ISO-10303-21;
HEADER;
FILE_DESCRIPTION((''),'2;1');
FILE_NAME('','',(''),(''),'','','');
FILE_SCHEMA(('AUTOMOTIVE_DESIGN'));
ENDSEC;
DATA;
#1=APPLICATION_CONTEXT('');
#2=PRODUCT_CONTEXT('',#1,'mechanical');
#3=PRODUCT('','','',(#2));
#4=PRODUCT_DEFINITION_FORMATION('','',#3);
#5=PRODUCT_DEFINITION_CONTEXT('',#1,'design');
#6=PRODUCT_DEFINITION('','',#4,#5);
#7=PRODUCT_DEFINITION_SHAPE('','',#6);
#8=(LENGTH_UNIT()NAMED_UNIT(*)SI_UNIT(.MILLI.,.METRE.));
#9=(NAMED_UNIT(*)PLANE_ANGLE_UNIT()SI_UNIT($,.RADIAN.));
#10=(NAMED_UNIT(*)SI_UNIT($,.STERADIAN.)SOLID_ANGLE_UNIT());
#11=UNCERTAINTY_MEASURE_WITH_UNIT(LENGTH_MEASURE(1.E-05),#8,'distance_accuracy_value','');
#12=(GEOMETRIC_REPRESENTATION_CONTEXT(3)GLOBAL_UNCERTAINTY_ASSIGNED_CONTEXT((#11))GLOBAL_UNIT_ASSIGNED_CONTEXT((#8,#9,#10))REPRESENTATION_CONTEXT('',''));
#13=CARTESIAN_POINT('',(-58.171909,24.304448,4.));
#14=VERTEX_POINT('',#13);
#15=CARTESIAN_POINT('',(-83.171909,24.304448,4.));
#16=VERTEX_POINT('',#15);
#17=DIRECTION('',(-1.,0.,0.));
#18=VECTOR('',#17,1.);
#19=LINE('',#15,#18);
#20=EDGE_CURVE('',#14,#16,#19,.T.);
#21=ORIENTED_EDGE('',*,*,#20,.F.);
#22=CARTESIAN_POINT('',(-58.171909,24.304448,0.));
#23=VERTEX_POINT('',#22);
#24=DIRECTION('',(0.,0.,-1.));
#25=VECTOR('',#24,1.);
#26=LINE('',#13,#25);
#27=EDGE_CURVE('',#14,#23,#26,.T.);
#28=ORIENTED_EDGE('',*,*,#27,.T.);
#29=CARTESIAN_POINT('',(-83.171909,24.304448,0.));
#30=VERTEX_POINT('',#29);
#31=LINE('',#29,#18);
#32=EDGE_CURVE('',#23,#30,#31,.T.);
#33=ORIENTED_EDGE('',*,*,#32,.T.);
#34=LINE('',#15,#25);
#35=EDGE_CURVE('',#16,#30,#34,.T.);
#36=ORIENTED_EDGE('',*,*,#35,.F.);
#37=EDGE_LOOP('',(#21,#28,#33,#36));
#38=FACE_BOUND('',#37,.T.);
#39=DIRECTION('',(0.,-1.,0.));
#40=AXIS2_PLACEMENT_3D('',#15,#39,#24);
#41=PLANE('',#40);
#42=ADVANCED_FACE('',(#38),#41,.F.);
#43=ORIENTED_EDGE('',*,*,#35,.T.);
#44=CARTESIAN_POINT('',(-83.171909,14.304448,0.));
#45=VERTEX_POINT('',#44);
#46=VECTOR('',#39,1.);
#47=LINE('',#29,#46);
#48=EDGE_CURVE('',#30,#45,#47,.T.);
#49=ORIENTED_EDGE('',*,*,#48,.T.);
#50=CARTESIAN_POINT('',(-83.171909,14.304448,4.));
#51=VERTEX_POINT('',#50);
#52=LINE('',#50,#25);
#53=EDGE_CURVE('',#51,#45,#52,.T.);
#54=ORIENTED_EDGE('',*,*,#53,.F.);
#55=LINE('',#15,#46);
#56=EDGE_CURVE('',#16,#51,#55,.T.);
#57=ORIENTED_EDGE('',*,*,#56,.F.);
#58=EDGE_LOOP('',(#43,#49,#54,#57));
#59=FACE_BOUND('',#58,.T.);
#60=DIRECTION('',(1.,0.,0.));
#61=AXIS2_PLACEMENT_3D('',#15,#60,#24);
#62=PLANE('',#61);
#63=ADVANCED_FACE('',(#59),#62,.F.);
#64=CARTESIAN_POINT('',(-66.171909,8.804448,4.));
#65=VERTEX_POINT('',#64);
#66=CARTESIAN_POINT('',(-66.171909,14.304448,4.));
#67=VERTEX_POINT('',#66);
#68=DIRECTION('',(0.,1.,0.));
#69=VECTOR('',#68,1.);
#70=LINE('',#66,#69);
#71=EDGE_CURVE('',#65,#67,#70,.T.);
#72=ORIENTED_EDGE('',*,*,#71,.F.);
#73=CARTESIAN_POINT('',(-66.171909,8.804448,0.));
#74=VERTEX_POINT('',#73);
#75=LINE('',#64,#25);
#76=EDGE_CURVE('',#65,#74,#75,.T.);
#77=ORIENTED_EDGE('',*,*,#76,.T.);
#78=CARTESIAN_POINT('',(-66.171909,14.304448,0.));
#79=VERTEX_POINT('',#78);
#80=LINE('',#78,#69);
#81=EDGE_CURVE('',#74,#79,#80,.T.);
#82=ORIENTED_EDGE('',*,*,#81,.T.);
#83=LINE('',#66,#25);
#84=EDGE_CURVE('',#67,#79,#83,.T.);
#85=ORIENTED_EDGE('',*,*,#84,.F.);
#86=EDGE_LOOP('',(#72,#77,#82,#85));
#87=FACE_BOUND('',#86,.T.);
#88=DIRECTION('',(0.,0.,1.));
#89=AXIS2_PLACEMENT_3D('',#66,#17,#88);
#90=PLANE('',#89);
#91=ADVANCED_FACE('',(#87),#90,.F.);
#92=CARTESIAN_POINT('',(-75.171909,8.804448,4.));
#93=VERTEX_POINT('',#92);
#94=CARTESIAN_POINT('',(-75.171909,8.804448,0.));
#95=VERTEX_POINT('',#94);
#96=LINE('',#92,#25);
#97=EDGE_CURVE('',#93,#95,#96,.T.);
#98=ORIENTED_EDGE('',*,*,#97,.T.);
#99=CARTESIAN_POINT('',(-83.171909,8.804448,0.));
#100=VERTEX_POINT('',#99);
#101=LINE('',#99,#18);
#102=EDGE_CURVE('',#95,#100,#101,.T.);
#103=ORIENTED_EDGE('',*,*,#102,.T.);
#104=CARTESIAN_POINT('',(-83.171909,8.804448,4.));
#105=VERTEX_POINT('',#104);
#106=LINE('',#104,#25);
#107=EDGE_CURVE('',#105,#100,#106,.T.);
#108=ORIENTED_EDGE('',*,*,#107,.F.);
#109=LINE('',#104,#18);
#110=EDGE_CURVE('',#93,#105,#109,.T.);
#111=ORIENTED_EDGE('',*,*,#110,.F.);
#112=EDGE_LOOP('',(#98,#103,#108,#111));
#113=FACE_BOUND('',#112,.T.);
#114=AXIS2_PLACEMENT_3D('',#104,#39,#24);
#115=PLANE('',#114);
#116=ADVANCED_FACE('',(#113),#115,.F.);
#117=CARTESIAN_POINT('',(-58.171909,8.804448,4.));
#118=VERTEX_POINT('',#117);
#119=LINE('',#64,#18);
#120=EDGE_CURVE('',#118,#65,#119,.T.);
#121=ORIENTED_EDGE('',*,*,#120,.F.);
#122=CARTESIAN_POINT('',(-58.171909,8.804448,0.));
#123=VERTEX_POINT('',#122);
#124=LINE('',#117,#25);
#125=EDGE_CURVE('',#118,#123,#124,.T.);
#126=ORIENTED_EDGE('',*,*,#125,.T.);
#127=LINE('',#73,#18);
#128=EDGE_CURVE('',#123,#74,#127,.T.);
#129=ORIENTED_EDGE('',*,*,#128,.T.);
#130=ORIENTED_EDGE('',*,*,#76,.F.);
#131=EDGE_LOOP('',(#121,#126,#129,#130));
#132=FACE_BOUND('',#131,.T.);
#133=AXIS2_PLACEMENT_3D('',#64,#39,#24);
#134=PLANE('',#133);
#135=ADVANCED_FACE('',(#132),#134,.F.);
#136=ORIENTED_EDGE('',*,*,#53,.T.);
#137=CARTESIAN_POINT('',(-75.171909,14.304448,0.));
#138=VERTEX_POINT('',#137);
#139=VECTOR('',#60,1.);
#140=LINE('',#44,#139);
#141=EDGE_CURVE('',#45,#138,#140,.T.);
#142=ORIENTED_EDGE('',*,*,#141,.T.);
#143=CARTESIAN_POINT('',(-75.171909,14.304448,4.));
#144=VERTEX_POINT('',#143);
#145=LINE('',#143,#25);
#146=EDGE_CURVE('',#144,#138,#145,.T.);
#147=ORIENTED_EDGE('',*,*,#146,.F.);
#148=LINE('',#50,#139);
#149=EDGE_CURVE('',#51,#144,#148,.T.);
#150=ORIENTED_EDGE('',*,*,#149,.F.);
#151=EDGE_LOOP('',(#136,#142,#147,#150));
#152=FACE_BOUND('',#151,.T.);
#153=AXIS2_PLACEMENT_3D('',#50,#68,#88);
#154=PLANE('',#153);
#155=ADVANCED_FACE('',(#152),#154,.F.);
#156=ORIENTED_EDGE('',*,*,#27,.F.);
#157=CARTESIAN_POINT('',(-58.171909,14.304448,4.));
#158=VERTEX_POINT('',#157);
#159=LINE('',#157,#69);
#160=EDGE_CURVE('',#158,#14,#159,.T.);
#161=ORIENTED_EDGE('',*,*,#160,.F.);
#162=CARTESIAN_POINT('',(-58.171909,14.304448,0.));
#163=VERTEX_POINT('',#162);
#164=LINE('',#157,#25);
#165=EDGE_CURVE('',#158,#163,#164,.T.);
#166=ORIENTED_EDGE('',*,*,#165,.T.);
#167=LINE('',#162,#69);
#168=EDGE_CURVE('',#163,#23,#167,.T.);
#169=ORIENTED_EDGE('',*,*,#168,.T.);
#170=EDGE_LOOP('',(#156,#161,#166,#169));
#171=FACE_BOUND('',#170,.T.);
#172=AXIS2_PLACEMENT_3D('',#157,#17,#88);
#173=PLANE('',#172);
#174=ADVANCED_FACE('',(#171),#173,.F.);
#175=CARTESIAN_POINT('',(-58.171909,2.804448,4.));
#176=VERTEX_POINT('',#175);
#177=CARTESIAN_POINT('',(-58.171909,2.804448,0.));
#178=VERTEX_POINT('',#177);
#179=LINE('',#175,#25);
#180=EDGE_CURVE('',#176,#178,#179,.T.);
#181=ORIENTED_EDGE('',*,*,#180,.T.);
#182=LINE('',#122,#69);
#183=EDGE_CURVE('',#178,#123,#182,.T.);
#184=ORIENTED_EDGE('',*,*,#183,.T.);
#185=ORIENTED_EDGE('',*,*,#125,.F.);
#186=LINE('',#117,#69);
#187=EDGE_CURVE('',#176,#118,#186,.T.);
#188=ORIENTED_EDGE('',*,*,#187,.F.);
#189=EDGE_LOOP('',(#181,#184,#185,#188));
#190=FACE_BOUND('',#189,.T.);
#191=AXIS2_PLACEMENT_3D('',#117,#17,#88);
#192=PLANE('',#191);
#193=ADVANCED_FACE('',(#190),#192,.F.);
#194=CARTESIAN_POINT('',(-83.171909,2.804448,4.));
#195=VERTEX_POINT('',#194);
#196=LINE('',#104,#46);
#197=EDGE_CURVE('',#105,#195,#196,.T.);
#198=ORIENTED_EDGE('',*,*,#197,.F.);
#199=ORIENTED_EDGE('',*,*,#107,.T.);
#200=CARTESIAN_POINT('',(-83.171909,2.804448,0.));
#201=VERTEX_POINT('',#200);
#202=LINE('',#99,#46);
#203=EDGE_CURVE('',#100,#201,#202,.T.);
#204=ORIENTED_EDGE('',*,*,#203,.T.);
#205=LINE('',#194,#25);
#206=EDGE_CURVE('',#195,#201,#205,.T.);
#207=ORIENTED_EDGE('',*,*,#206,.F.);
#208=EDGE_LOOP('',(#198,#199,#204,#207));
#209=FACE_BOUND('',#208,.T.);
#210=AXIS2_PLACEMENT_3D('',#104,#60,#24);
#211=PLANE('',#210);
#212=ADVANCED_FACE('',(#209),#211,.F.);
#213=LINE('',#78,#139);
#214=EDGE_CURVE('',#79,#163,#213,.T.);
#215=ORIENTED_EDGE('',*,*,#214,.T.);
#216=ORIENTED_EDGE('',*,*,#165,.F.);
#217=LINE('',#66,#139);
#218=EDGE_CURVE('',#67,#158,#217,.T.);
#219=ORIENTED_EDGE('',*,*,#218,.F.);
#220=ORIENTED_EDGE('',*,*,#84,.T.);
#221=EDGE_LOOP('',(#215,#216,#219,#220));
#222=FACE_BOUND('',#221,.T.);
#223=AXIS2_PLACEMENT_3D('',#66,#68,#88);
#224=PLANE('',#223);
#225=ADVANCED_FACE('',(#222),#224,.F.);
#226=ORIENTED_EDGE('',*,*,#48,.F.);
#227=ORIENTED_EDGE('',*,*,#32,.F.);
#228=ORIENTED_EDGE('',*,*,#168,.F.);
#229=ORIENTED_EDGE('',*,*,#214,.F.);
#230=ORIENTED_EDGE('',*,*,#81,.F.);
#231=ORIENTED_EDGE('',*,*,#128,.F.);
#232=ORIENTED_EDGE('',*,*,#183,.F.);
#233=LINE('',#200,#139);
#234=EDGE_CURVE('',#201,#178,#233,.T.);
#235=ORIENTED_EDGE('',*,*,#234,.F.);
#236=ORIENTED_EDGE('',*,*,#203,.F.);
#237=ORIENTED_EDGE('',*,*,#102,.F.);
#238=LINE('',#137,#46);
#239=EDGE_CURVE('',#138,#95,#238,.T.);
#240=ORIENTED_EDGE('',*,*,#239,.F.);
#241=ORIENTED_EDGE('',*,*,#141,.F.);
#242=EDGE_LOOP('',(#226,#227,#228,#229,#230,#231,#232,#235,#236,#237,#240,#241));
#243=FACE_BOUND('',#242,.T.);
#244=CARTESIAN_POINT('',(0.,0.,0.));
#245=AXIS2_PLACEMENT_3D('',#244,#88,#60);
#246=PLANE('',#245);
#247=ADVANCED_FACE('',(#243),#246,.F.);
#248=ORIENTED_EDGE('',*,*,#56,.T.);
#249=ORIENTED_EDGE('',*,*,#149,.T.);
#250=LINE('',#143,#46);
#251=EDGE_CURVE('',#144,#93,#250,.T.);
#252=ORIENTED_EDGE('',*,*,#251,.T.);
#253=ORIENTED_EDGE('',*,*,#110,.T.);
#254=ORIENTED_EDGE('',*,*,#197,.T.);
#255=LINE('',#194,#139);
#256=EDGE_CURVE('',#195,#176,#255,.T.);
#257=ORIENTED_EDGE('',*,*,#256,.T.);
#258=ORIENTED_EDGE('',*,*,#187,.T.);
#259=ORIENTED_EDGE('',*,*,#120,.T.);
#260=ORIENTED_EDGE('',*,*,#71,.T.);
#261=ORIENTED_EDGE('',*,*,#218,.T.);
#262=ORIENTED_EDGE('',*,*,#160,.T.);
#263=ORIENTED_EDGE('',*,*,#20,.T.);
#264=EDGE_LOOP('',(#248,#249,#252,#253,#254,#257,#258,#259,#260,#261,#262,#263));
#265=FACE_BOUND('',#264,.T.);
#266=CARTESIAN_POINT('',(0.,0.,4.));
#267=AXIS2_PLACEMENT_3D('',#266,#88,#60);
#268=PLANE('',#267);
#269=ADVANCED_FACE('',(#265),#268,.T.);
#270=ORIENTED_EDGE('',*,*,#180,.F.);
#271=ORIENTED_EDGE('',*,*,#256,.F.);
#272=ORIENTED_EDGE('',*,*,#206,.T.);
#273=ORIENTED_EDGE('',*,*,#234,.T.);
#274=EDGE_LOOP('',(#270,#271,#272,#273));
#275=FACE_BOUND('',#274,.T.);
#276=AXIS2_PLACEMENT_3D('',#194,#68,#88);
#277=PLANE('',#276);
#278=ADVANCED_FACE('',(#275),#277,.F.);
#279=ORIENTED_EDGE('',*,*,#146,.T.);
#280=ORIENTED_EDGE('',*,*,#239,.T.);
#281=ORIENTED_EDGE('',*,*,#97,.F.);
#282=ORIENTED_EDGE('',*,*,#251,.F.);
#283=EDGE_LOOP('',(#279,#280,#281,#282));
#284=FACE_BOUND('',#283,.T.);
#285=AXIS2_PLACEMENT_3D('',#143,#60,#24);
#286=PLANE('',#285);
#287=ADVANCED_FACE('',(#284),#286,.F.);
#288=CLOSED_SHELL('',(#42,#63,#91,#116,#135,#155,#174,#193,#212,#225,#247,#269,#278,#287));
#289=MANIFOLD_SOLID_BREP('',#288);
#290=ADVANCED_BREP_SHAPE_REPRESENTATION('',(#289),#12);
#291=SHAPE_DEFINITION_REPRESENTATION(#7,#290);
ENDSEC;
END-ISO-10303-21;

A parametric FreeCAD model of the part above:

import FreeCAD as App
import Part
import Sketcher
Q = App.Units.Quantity

doc = App.newDocument("Part")
body = doc.addObject("PartDesign::Body", "Body")

# Sketch on XY plane
sketch1 = body.newObject("Sketcher::SketchObject", "Sketch")
sketch1.AttachmentSupport = (doc.getObject("XY_Plane"), [""])
sketch1.MapMode = "FlatFace"
sketch1.addGeometry(Part.LineSegment(App.Vector(-58, 24, 0), App.Vector(-83, 24, 0)), False)
sketch1.addGeometry(Part.LineSegment(App.Vector(-83, 24, 0), App.Vector(-83, 14, 0)), False)
sketch1.addGeometry(Part.LineSegment(App.Vector(-83, 14, 0), App.Vector(-75, 14, 0)), False)
sketch1.addGeometry(Part.LineSegment(App.Vector(-75, 14, 0), App.Vector(-75, 9, 0)), False)
sketch1.addGeometry(Part.LineSegment(App.Vector(-75, 9, 0), App.Vector(-83, 9, 0)), False)
sketch1.addGeometry(Part.LineSegment(App.Vector(-83, 9, 0), App.Vector(-83, 3, 0)), False)
sketch1.addGeometry(Part.LineSegment(App.Vector(-83, 3, 0), App.Vector(-58, 3, 0)), False)
sketch1.addGeometry(Part.LineSegment(App.Vector(-58, 3, 0), App.Vector(-58, 9, 0)), False)
sketch1.addGeometry(Part.LineSegment(App.Vector(-58, 9, 0), App.Vector(-66, 9, 0)), False)
sketch1.addGeometry(Part.LineSegment(App.Vector(-66, 9, 0), App.Vector(-66, 14, 0)), False)
sketch1.addGeometry(Part.LineSegment(App.Vector(-66, 14, 0), App.Vector(-58, 14, 0)), False)
sketch1.addGeometry(Part.LineSegment(App.Vector(-58, 14, 0), App.Vector(-58, 24, 0)), False)
sketch1.addConstraint(Sketcher.Constraint("Coincident", 0, 2, 1, 1))
sketch1.addConstraint(Sketcher.Constraint("Coincident", 1, 2, 2, 1))
sketch1.addConstraint(Sketcher.Constraint("Coincident", 2, 2, 3, 1))
sketch1.addConstraint(Sketcher.Constraint("Coincident", 3, 2, 4, 1))
sketch1.addConstraint(Sketcher.Constraint("Coincident", 4, 2, 5, 1))
sketch1.addConstraint(Sketcher.Constraint("Coincident", 5, 2, 6, 1))
sketch1.addConstraint(Sketcher.Constraint("Coincident", 6, 2, 7, 1))
sketch1.addConstraint(Sketcher.Constraint("Coincident", 7, 2, 8, 1))
sketch1.addConstraint(Sketcher.Constraint("Coincident", 8, 2, 9, 1))
sketch1.addConstraint(Sketcher.Constraint("Coincident", 9, 2, 10, 1))
sketch1.addConstraint(Sketcher.Constraint("Coincident", 10, 2, 11, 1))
sketch1.addConstraint(Sketcher.Constraint("Coincident", 11, 2, 0, 1))
sketch1.addConstraint(Sketcher.Constraint("Horizontal", 0))
sketch1.addConstraint(Sketcher.Constraint("Vertical", 1))
sketch1.addConstraint(Sketcher.Constraint("Horizontal", 2))
sketch1.addConstraint(Sketcher.Constraint("Vertical", 3))
sketch1.addConstraint(Sketcher.Constraint("Horizontal", 4))
sketch1.addConstraint(Sketcher.Constraint("Vertical", 5))
sketch1.addConstraint(Sketcher.Constraint("Horizontal", 6))
sketch1.addConstraint(Sketcher.Constraint("Vertical", 7))
sketch1.addConstraint(Sketcher.Constraint("Horizontal", 8))
sketch1.addConstraint(Sketcher.Constraint("Vertical", 9))
sketch1.addConstraint(Sketcher.Constraint("Horizontal", 10))
sketch1.addConstraint(Sketcher.Constraint("Vertical", 11))
sketch1.addConstraint(Sketcher.Constraint("Horizontal", 4, 2, 7, 2))
sketch1.addConstraint(Sketcher.Constraint("Horizontal", 2, 2, 9, 2))
sketch1.addConstraint(Sketcher.Constraint("Vertical", 1, 2, 4, 2))
sketch1.addConstraint(Sketcher.Constraint("Vertical", 7, 2, 10, 2))
sketch1.addConstraint(Sketcher.Constraint("Equal", 4, 8))
sketch1.addConstraint(Sketcher.Constraint("DistanceX", 0, 2, 0, 1, Q("25 mm")))
sketch1.addConstraint(Sketcher.Constraint("DistanceX", 2, 1, 2, 2, Q("8 mm")))
sketch1.addConstraint(Sketcher.Constraint("DistanceY", 1, 2, 1, 1, Q("10 mm")))
sketch1.addConstraint(Sketcher.Constraint("DistanceY", 5, 2, 5, 1, Q("6 mm")))
sketch1.addConstraint(Sketcher.Constraint("DistanceY", 3, 2, 3, 1, Q("5.5 mm")))
sketch1.addConstraint(Sketcher.Constraint("DistanceX", 0, 2, -1, 1, Q("83.171909 mm")))
sketch1.addConstraint(Sketcher.Constraint("DistanceY", -1, 1, 0, 2, Q("24.304448 mm")))
pad1 = body.newObject("PartDesign::Pad", "Pad")
pad1.Profile = sketch1
pad1.Length = 4

doc.recompute()
